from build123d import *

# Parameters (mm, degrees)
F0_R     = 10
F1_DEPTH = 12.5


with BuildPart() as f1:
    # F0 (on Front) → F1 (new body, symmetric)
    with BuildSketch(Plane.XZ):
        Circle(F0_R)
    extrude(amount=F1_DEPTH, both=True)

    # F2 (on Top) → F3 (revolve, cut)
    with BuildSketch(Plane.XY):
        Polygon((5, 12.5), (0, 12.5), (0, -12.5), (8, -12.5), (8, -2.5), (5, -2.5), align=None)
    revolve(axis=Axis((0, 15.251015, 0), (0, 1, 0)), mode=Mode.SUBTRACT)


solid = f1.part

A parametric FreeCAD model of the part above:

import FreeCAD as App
import Part
import Sketcher

V = App.Vector


def add_polygon(sketch, points):
    """Adds a closed chain of lines whose ends are joined by coincident constraints."""
    first, n = sketch.GeometryCount, len(points)
    for a, b in zip(points, points[1:] + points[:1]):
        sketch.addGeometry(Part.LineSegment(App.Vector(*a, 0), App.Vector(*b, 0)), False)
    for i in range(n):
        sketch.addConstraint(Sketcher.Constraint("Coincident", first + i, 2, first + (i + 1) % n, 1))

doc = App.newDocument("Part")
body = doc.addObject("PartDesign::Body", "Body")

# Sketch on XZ plane
sketch1 = body.newObject("Sketcher::SketchObject", "Sketch")
sketch1.AttachmentSupport = (doc.getObject("XZ_Plane"), [""])
sketch1.MapMode = "FlatFace"
sketch1.addGeometry(Part.Circle(V(0, 0, 0), V(0, 0, 1), 10), False)
sketch1.addConstraint([
    Sketcher.Constraint("Coincident", 0, 3, -1, 1),
    Sketcher.Constraint("Diameter", 0, 20.0),
])
pad1 = body.newObject("PartDesign::Pad", "Pad")
pad1.Profile = sketch1
pad1.Length = 25
pad1.Midplane = True

# Sketch on XY plane
sketch2 = body.newObject("Sketcher::SketchObject", "Sketch001")
sketch2.AttachmentSupport = (doc.getObject("XY_Plane"), [""])
sketch2.MapMode = "FlatFace"
add_polygon(sketch2, [(5, 12.5), (0, 12.5), (0, -12.5), (8, -12.5), (8, -2.5), (5, -2.5)])  # lines 0-5
sketch2.addConstraint([
    Sketcher.Constraint("Horizontal", 0),
    Sketcher.Constraint("Vertical", 1),
    Sketcher.Constraint("Horizontal", 2),
    Sketcher.Constraint("Vertical", 3),
    Sketcher.Constraint("Horizontal", 4),
    Sketcher.Constraint("Vertical", 5),
    Sketcher.Constraint("Symmetric", 0, 2, 1, 2, -1, 1),
    Sketcher.Constraint("DistanceX", 0, 2, 0, 1, 5.0),
    Sketcher.Constraint("DistanceX", 2, 1, 2, 2, 8.0),
    Sketcher.Constraint("DistanceY", 1, 2, 1, 1, 25.0),
    Sketcher.Constraint("DistanceY", 3, 1, 3, 2, 10.0),
])
groove = body.newObject("PartDesign::Groove", "Groove")
groove.Profile = sketch2
groove.ReferenceAxis = (sketch2, ["V_Axis"])
groove.Angle = 360

doc.recompute()
